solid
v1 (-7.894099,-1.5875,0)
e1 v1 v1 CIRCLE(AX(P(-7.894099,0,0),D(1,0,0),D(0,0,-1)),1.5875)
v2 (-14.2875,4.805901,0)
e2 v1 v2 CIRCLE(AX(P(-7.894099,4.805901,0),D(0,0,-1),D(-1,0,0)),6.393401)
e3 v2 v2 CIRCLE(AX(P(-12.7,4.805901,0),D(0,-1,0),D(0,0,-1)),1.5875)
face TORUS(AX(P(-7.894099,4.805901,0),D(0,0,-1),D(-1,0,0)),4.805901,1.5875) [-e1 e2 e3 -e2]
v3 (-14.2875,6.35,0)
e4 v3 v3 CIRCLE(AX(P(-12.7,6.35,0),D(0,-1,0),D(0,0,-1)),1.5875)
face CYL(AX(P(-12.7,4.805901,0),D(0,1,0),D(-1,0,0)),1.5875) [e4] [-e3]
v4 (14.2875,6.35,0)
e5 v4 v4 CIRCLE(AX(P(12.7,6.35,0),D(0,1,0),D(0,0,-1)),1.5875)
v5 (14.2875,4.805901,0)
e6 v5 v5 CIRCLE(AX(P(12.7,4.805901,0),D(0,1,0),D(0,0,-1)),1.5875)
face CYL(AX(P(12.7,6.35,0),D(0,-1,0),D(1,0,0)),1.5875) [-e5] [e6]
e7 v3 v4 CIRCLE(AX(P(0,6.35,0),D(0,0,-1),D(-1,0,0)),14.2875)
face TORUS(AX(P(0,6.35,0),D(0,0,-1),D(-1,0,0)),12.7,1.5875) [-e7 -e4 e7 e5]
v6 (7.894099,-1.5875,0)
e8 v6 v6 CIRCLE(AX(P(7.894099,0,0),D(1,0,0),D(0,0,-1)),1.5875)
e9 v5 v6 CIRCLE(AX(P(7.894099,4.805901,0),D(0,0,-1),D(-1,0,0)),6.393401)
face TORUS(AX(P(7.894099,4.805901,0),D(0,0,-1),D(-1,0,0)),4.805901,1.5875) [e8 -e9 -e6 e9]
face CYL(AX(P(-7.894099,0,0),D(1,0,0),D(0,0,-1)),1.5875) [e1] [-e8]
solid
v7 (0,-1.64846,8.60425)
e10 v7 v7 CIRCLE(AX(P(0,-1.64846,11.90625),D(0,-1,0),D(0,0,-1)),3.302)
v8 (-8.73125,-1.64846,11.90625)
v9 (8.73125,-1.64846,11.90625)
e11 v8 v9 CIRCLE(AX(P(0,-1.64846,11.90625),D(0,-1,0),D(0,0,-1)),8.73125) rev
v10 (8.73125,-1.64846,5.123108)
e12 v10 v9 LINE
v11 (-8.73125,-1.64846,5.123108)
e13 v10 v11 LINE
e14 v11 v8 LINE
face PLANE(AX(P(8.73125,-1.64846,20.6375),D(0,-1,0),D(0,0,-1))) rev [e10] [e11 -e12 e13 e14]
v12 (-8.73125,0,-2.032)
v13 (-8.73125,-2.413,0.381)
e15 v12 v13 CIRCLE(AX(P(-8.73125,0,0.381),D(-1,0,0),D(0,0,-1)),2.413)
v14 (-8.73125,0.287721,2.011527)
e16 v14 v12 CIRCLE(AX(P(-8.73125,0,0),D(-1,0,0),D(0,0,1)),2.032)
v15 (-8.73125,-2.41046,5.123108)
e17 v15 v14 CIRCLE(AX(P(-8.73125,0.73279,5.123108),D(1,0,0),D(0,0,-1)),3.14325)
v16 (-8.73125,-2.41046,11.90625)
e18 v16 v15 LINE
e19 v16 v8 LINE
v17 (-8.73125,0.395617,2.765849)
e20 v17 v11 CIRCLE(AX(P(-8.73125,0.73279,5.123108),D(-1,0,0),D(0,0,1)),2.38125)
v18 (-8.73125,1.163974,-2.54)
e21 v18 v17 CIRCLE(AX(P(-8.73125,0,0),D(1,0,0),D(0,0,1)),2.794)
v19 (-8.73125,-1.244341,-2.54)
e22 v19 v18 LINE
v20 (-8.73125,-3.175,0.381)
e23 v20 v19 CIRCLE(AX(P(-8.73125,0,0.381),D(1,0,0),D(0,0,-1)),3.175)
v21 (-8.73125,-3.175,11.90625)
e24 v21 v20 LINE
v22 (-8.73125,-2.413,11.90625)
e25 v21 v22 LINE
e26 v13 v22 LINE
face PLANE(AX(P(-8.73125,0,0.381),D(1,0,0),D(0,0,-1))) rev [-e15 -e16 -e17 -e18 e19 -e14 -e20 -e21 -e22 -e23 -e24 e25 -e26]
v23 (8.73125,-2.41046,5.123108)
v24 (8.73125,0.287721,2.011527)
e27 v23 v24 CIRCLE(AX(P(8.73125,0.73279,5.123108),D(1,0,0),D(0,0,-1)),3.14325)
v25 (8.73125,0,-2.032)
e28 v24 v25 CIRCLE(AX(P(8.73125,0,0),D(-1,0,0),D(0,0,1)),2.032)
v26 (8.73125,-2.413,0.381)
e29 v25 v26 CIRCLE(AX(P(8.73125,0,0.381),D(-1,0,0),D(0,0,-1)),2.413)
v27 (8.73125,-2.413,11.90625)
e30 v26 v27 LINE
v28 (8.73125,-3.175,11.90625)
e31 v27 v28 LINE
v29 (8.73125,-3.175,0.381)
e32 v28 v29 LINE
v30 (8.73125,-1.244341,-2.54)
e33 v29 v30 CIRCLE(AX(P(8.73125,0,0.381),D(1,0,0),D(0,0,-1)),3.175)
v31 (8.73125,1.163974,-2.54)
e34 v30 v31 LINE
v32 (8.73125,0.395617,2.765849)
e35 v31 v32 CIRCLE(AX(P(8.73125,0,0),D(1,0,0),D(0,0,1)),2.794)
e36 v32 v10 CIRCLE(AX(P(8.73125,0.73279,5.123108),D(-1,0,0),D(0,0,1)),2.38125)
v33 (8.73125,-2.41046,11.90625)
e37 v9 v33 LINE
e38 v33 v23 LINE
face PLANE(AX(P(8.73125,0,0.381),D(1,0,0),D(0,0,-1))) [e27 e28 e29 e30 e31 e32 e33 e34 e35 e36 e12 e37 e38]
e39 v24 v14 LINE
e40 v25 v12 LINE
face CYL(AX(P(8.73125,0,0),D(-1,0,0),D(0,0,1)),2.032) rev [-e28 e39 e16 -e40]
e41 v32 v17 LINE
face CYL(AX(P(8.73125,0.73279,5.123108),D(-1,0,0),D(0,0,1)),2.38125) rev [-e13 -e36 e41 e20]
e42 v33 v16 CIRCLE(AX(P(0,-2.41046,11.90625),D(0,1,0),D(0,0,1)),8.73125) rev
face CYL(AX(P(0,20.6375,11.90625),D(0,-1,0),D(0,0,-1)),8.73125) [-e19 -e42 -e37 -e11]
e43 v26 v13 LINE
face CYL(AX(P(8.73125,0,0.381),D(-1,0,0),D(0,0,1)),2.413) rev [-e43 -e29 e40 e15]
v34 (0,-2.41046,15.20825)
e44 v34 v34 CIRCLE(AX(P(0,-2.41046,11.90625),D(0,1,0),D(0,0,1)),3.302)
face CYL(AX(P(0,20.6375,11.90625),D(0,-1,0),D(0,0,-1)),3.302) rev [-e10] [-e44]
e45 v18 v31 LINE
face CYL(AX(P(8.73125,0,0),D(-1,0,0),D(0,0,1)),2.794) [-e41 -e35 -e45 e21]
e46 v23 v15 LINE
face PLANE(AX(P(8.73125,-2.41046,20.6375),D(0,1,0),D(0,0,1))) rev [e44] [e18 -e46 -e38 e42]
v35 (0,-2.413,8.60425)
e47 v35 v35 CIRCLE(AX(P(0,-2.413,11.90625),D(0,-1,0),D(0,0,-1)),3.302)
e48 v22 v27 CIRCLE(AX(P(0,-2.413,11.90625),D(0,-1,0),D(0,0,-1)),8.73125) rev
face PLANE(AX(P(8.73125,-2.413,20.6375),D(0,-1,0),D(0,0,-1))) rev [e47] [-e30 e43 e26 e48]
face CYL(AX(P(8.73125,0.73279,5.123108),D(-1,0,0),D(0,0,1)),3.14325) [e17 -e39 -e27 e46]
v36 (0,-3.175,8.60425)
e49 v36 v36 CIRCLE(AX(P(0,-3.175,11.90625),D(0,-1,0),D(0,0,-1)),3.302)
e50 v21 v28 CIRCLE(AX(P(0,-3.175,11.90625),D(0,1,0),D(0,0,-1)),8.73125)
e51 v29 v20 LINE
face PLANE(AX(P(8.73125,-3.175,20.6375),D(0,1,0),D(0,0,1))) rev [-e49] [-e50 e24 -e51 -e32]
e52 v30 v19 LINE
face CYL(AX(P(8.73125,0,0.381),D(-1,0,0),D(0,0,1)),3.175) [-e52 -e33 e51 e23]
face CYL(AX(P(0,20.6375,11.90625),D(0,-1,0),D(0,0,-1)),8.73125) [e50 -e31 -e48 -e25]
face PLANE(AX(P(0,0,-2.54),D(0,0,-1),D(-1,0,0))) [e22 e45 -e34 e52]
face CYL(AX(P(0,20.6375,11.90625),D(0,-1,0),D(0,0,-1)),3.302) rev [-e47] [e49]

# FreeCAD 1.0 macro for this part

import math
import FreeCAD as App
import Part
import Sketcher
Q = App.Units.Quantity

doc = App.newDocument("Part")
body = doc.addObject("PartDesign::Body", "Body")

sketch1 = body.newObject("Sketcher::SketchObject", "Sketch")
sketch1.AttachmentSupport = (doc.getObject("YZ_Plane"), [""])
sketch1.MapMode = "FlatFace"
sketch1.addGeometry(Part.Circle(App.Vector(0, 0, 0), App.Vector(0, 0, 1), 1.6), False)
sketch1.addConstraint([
    Sketcher.Constraint("Coincident", 0, 3, -1, 1),
    Sketcher.Constraint("Diameter", 0, Q("0.125 in")),
])

sketch2 = body.newObject("Sketcher::SketchObject", "Sketch001")
sketch2.AttachmentSupport = (doc.getObject("XY_Plane"), [""])
sketch2.MapMode = "FlatFace"
sketch2.addGeometry([
    Part.LineSegment(App.Vector(-12.7, 6.3, 0), App.Vector(-12.7, 4.8, 0)),
    Part.ArcOfCircle(Part.Circle(App.Vector(-7.9, 4.8, 0), App.Vector(0, 0, 1), 4.8), math.radians(180), math.radians(270)),
    Part.LineSegment(App.Vector(-7.9, 0, 0), App.Vector(7.9, 0, 0)),
    Part.ArcOfCircle(Part.Circle(App.Vector(7.9, 4.8, 0), App.Vector(0, 0, 1), 4.8), math.radians(-90), math.radians(0)),
    Part.LineSegment(App.Vector(12.7, 4.8, 0), App.Vector(12.7, 6.3, 0)),
    Part.ArcOfCircle(Part.Circle(App.Vector(0, 6.3, 0), App.Vector(0, 0, 1), 12.7), math.radians(0), math.radians(180)),
], False)
sketch2.addConstraint([
    Sketcher.Constraint("Tangent", 0, 2, 1, 1),
    Sketcher.Constraint("Tangent", 1, 2, 2, 1),
    Sketcher.Constraint("Tangent", 2, 2, 3, 1),
    Sketcher.Constraint("Tangent", 3, 2, 4, 1),
    Sketcher.Constraint("Tangent", 4, 2, 5, 1),
    Sketcher.Constraint("Tangent", 5, 2, 0, 1),
    Sketcher.Constraint("Vertical", 0),
    Sketcher.Constraint("Horizontal", 2),
    Sketcher.Constraint("Vertical", 4),
    Sketcher.Constraint("Equal", 1, 3),
    Sketcher.Constraint("Symmetric", 1, 2, 2, 2, -1, 1),
    Sketcher.Constraint("Radius", 5, Q("0.5 in")),
    Sketcher.Constraint("DistanceY", -1, 1, 5, 3, Q("0.25 in")),
    Sketcher.Constraint("Radius", 1, Q("4.805901 mm")),
])
doc.recompute()

additivepipe = body.newObject("PartDesign::AdditivePipe", "AdditivePipe")
additivepipe.Profile = sketch1
additivepipe.Spine = (sketch2, ["Edge1", "Edge2", "Edge3", "Edge4", "Edge5", "Edge6"])
body2 = doc.addObject("PartDesign::Body", "Body001")

sketch3 = body2.newObject("Sketcher::SketchObject", "Sketch002")
sketch3.AttachmentSupport = (doc.getObject("YZ_Plane001"), [""])
sketch3.MapMode = "FlatFace"
sketch3.addGeometry([
    Part.LineSegment(App.Vector(-3.2, 20.6, 0), App.Vector(-3.2, 0.4, 0)),
    Part.ArcOfCircle(Part.Circle(App.Vector(0, 0.4, 0), App.Vector(0, 0, 1), 3.2), math.radians(-180), math.radians(-90)),
    Part.ArcOfCircle(Part.Circle(App.Vector(0, 0, 0), App.Vector(0, 0, 1), 2.8), math.radians(-90), math.radians(82)),
    Part.ArcOfCircle(Part.Circle(App.Vector(0.7, 5.1, 0), App.Vector(0, 0, 1), 2.4), math.radians(-180), math.radians(-98)),
    Part.LineSegment(App.Vector(-1.6, 5.1, 0), App.Vector(-1.6, 20.6, 0)),
    Part.LineSegment(App.Vector(-1.6, 20.6, 0), App.Vector(-2.4, 20.6, 0)),
    Part.LineSegment(App.Vector(-2.4, 20.6, 0), App.Vector(-2.4, 5.1, 0)),
    Part.ArcOfCircle(Part.Circle(App.Vector(0.7, 5.1, 0), App.Vector(0, 0, 1), 3.1), math.radians(180), math.radians(262)),
    Part.ArcOfCircle(Part.Circle(App.Vector(0, 0, 0), App.Vector(0, 0, 1), 2), math.radians(-90), math.radians(82)),
    Part.ArcOfCircle(Part.Circle(App.Vector(0, 0.4, 0), App.Vector(0, 0, 1), 2.4), math.radians(180), math.radians(270)),
    Part.LineSegment(App.Vector(-2.4, 0.4, 0), App.Vector(-2.4, 20.6, 0)),
    Part.LineSegment(App.Vector(-2.4, 20.6, 0), App.Vector(-3.2, 20.6, 0)),
], False)
sketch3.addConstraint([
    Sketcher.Constraint("Tangent", 0, 2, 1, 1),
    Sketcher.Constraint("Tangent", 1, 2, 2, 1),
    Sketcher.Constraint("Tangent", 2, 2, 3, 2),
    Sketcher.Constraint("Tangent", 3, 1, 4, 1),
    Sketcher.Constraint("Coincident", 4, 2, 5, 1),
    Sketcher.Constraint("Coincident", 5, 2, 6, 1),
    Sketcher.Constraint("Tangent", 6, 2, 7, 1),
    Sketcher.Constraint("Tangent", 7, 2, 8, 2),
    Sketcher.Constraint("Tangent", 8, 1, 9, 2),
    Sketcher.Constraint("Tangent", 9, 1, 10, 1),
    Sketcher.Constraint("Coincident", 10, 2, 11, 1),
    Sketcher.Constraint("Coincident", 11, 2, 0, 1),
    Sketcher.Constraint("Vertical", 0),
    Sketcher.Constraint("Vertical", 4),
    Sketcher.Constraint("Horizontal", 5),
    Sketcher.Constraint("Vertical", 6),
    Sketcher.Constraint("Vertical", 10),
    Sketcher.Constraint("Horizontal", 11),
    Sketcher.Constraint("Coincident", 2, 3, -1, 1),
    Sketcher.Constraint("Coincident", 8, 3, -1, 1),
    Sketcher.Constraint("Coincident", 7, 3, 3, 3),
    Sketcher.Constraint("Coincident", 9, 3, 1, 3),
    Sketcher.Constraint("PointOnObject", 1, 3, -2),
    Sketcher.Constraint("Horizontal", 5, 2, 10, 2),
    Sketcher.Constraint("Radius", 2, Q("0.11 in")),
    Sketcher.Constraint("Radius", 8, Q("0.08 in")),
    Sketcher.Constraint("Radius", 1, Q("0.125 in")),
    Sketcher.Constraint("Radius", 3, Q("0.09375 in")),
    Sketcher.Constraint("DistanceY", 0, 2, 0, 1, Q("0.7975 in")),
    Sketcher.Constraint("DistanceX", 3, 1, -1, 1, Q("0.0649 in")),
])
pad1 = body2.newObject("PartDesign::Pad", "Pad")
pad1.Profile = sketch3
pad1.Length = Q("0.6875 in")
pad1.Midplane = True

sketch4 = body2.newObject("Sketcher::SketchObject", "Sketch003")
sketch4.AttachmentSupport = (doc.getObject("XZ_Plane001"), [""])
sketch4.MapMode = "FlatFace"
sketch4.AttachmentOffset = App.Placement(App.Vector(0, 0, 0.125 * 25.4), App.Rotation())
sketch4.addGeometry([
    Part.Circle(App.Vector(0, 11.9, 0), App.Vector(0, 0, 1), 3.3),
    Part.LineSegment(App.Vector(-8.7, 21.9, 0), App.Vector(-8.7, 11.9, 0)),
    Part.ArcOfCircle(Part.Circle(App.Vector(0, 11.9, 0), App.Vector(0, 0, 1), 8.7), math.radians(0), math.radians(180)),
    Part.LineSegment(App.Vector(8.7, 11.9, 0), App.Vector(8.7, 21.9, 0)),
    Part.LineSegment(App.Vector(8.7, 21.9, 0), App.Vector(-8.7, 21.9, 0)),
], False)
sketch4.addConstraint([
    Sketcher.Constraint("Tangent", 1, 2, 2, 2),
    Sketcher.Constraint("Tangent", 2, 1, 3, 1),
    Sketcher.Constraint("Coincident", 3, 2, 4, 1),
    Sketcher.Constraint("Coincident", 4, 2, 1, 1),
    Sketcher.Constraint("Vertical", 1),
    Sketcher.Constraint("Vertical", 3),
    Sketcher.Constraint("Horizontal", 4),
    Sketcher.Constraint("Coincident", 2, 3, 0, 3),
    Sketcher.Constraint("PointOnObject", 0, 3, -2),
    Sketcher.Constraint("Diameter", 0, Q("0.26 in")),
    Sketcher.Constraint("Radius", 2, Q("0.34375 in")),
    Sketcher.Constraint("DistanceY", -1, 1, 0, 3, Q("0.46875 in")),
    Sketcher.Constraint("DistanceY", -1, 1, 3, 2, Q("0.8625 in")),
])
pocket1 = body2.newObject("PartDesign::Pocket", "Pocket")
pocket1.Profile = sketch4
pocket1.Type = "ThroughAll"

sketch5 = body2.newObject("Sketcher::SketchObject", "Sketch004")
sketch5.AttachmentSupport = (doc.getObject("XY_Plane001"), [""])
sketch5.MapMode = "FlatFace"
sketch5.AttachmentOffset = App.Placement(App.Vector(0, 0, -0.1 * 25.4), App.Rotation())
sketch5.addGeometry([
    Part.LineSegment(App.Vector(-10.1, 2.2, 0), App.Vector(-10.1, -2.2, 0)),
    Part.LineSegment(App.Vector(-10.1, -2.2, 0), App.Vector(9, -2.2, 0)),
    Part.LineSegment(App.Vector(9, -2.2, 0), App.Vector(9, 2.2, 0)),
    Part.LineSegment(App.Vector(9, 2.2, 0), App.Vector(-10.1, 2.2, 0)),
], False)
sketch5.addConstraint([
    Sketcher.Constraint("Coincident", 0, 2, 1, 1),
    Sketcher.Constraint("Coincident", 1, 2, 2, 1),
    Sketcher.Constraint("Coincident", 2, 2, 3, 1),
    Sketcher.Constraint("Coincident", 3, 2, 0, 1),
    Sketcher.Constraint("Vertical", 0),
    Sketcher.Constraint("Horizontal", 1),
    Sketcher.Constraint("Vertical", 2),
    Sketcher.Constraint("Horizontal", 3),
    Sketcher.Constraint("DistanceX", 1, 1, 1, 2, Q("19.108332 mm")),
    Sketcher.Constraint("DistanceY", 0, 2, 0, 1, Q("4.407317 mm")),
    Sketcher.Constraint("DistanceY", 0, 2, -1, 1, Q("2.242221 mm")),
    Sketcher.Constraint("DistanceX", 0, 2, -1, 1, Q("10.084538 mm")),
])
pocket2 = body2.newObject("PartDesign::Pocket", "Pocket001")
pocket2.Profile = sketch5
pocket2.Length = Q("0.1 in")

doc.recompute()
